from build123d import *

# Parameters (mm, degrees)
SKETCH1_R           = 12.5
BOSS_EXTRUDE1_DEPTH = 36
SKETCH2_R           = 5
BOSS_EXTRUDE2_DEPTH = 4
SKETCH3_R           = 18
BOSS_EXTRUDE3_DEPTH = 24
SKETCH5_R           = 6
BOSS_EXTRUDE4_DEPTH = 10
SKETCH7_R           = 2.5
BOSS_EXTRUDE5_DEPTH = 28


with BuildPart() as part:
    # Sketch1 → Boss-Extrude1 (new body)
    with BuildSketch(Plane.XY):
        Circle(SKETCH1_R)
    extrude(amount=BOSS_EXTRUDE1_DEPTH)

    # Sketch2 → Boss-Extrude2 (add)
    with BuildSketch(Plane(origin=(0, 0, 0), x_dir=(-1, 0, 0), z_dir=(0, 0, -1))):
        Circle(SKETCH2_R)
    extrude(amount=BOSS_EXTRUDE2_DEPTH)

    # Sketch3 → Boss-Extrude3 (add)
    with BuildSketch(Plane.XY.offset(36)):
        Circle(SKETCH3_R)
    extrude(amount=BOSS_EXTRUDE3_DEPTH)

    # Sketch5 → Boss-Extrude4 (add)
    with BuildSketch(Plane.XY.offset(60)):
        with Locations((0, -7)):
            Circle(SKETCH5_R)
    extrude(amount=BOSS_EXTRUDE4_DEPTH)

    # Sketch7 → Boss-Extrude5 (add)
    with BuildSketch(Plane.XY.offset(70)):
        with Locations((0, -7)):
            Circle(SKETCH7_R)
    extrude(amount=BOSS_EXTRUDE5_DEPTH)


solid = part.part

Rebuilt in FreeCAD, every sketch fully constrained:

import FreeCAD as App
import Part
import Sketcher
Q = App.Units.Quantity

doc = App.newDocument("Part")
params = doc.addObject("Spreadsheet::Sheet", "Params")
for row, (alias, value) in enumerate([
    ("sketch1_diameter", "25 mm"),
    ("pad1_length", "36 mm"),
    ("sketch2_diameter", "10 mm"),
    ("pad2_length", "4 mm"),
    ("sketch3_diameter", "36 mm"),
    ("pad3_length", "24 mm"),
    ("sketch4_diameter", "12 mm"),
    ("pad4_length", "10 mm"),
    ("sketch5_diameter", "5 mm"),
    ("pad5_length", "28 mm"),
], start=1):
    params.set(f"A{row}", alias)
    params.set(f"B{row}", "=" + value)
    params.setAlias(f"B{row}", alias)

body = doc.addObject("PartDesign::Body", "Body")

# Sketch on XY plane
sketch1 = body.newObject("Sketcher::SketchObject", "Sketch")
sketch1.AttachmentSupport = (doc.getObject("XY_Plane"), [""])
sketch1.MapMode = "FlatFace"
sketch1.addGeometry(Part.Circle(App.Vector(0, 0, 0), App.Vector(0, 0, 1), 12), False)
sketch1.addConstraint([
    Sketcher.Constraint("Coincident", 0, 3, -1, 1),
    Sketcher.Constraint("Diameter", 0, Q("25 mm")),
])
sketch1.setExpression("Constraints[1]", "Params.sketch1_diameter")
pad1 = body.newObject("PartDesign::Pad", "Pad")
pad1.Profile = sketch1
pad1.setExpression("Length", "Params.pad1_length")

# Sketch on XY plane
sketch2 = body.newObject("Sketcher::SketchObject", "Sketch001")
sketch2.AttachmentSupport = (doc.getObject("XY_Plane"), [""])
sketch2.MapMode = "FlatFace"
sketch2.addGeometry(Part.Circle(App.Vector(0, 0, 0), App.Vector(0, 0, 1), 5), False)
sketch2.addConstraint([
    Sketcher.Constraint("Coincident", 0, 3, -1, 1),
    Sketcher.Constraint("Diameter", 0, Q("10 mm")),
])
sketch2.setExpression("Constraints[1]", "Params.sketch2_diameter")
pad2 = body.newObject("PartDesign::Pad", "Pad001")
pad2.Profile = sketch2
pad2.setExpression("Length", "Params.pad2_length")
pad2.Reversed = True

# Sketch on XY plane
sketch3 = body.newObject("Sketcher::SketchObject", "Sketch002")
sketch3.AttachmentSupport = (doc.getObject("XY_Plane"), [""])
sketch3.MapMode = "FlatFace"
sketch3.AttachmentOffset = App.Placement(App.Vector(0, 0, 36), App.Rotation())
sketch3.addGeometry(Part.Circle(App.Vector(0, 0, 0), App.Vector(0, 0, 1), 18), False)
sketch3.addConstraint([
    Sketcher.Constraint("Coincident", 0, 3, -1, 1),
    Sketcher.Constraint("Diameter", 0, Q("36 mm")),
])
sketch3.setExpression("Constraints[1]", "Params.sketch3_diameter")
pad3 = body.newObject("PartDesign::Pad", "Pad002")
pad3.Profile = sketch3
pad3.setExpression("Length", "Params.pad3_length")

# Sketch on XY plane
sketch4 = body.newObject("Sketcher::SketchObject", "Sketch003")
sketch4.AttachmentSupport = (doc.getObject("XY_Plane"), [""])
sketch4.MapMode = "FlatFace"
sketch4.AttachmentOffset = App.Placement(App.Vector(0, 0, 60), App.Rotation())
sketch4.addGeometry(Part.Circle(App.Vector(0, -7, 0), App.Vector(0, 0, 1), 6), False)
sketch4.addConstraint([
    Sketcher.Constraint("PointOnObject", 0, 3, -2),
    Sketcher.Constraint("Diameter", 0, Q("12 mm")),
    Sketcher.Constraint("DistanceY", 0, 3, -1, 1, Q("7 mm")),
])
sketch4.setExpression("Constraints[1]", "Params.sketch4_diameter")
pad4 = body.newObject("PartDesign::Pad", "Pad003")
pad4.Profile = sketch4
pad4.setExpression("Length", "Params.pad4_length")

# Sketch on XY plane
sketch5 = body.newObject("Sketcher::SketchObject", "Sketch004")
sketch5.AttachmentSupport = (doc.getObject("XY_Plane"), [""])
sketch5.MapMode = "FlatFace"
sketch5.AttachmentOffset = App.Placement(App.Vector(0, 0, 70), App.Rotation())
sketch5.addGeometry(Part.Circle(App.Vector(0, -7, 0), App.Vector(0, 0, 1), 2.5), False)
sketch5.addConstraint([
    Sketcher.Constraint("PointOnObject", 0, 3, -2),
    Sketcher.Constraint("Diameter", 0, Q("5 mm")),
    Sketcher.Constraint("DistanceY", 0, 3, -1, 1, Q("7 mm")),
])
sketch5.setExpression("Constraints[1]", "Params.sketch5_diameter")
pad5 = body.newObject("PartDesign::Pad", "Pad004")
pad5.Profile = sketch5
pad5.setExpression("Length", "Params.pad5_length")

doc.recompute()
